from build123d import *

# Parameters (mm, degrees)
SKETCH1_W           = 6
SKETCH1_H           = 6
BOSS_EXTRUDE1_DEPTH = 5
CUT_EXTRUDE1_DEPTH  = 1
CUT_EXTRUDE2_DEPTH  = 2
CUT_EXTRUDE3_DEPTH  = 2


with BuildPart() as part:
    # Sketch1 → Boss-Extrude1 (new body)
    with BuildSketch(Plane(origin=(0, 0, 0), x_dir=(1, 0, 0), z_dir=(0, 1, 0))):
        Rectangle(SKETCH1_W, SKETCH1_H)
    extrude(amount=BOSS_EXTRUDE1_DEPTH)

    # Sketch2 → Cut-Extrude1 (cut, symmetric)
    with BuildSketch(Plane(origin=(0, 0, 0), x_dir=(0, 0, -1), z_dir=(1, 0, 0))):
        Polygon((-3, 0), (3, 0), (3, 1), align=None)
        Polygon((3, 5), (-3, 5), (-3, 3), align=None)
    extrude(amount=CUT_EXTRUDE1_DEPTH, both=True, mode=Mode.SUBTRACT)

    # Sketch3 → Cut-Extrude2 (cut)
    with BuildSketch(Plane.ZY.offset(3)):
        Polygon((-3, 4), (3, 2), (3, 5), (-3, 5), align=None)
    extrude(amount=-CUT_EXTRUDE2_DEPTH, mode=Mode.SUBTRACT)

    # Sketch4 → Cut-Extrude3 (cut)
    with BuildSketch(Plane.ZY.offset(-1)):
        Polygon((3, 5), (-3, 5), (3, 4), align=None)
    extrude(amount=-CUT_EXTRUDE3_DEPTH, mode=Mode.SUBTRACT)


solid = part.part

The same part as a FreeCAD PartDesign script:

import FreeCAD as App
import Part
import Sketcher
from FreeCAD import Vector
Q = App.Units.Quantity

doc = App.newDocument("Part")
body = doc.addObject("PartDesign::Body", "Body")

# Sketch on XZ plane
sketch1 = doc.addObject("Sketcher::SketchObject", "Sketch")
body.addObject(sketch1)
sketch1.AttachmentSupport = (doc.XZ_Plane, [""])
sketch1.MapMode = "FlatFace"
sketch1.addGeometry([
    Part.LineSegment(Vector(-3, -3, 0), Vector(-3, 3, 0)),
    Part.LineSegment(Vector(-3, 3, 0), Vector(3, 3, 0)),
    Part.LineSegment(Vector(3, 3, 0), Vector(3, -3, 0)),
    Part.LineSegment(Vector(3, -3, 0), Vector(-3, -3, 0)),
], False)
sketch1.addConstraint([
    Sketcher.Constraint("Coincident", 0, 2, 1, 1),
    Sketcher.Constraint("Coincident", 1, 2, 2, 1),
    Sketcher.Constraint("Coincident", 2, 2, 3, 1),
    Sketcher.Constraint("Coincident", 3, 2, 0, 1),
    Sketcher.Constraint("Vertical", 0),
    Sketcher.Constraint("Horizontal", 1),
    Sketcher.Constraint("Vertical", 2),
    Sketcher.Constraint("Horizontal", 3),
    Sketcher.Constraint("Symmetric", 0, 2, 2, 2, -1, 1),
    Sketcher.Constraint("Equal", 3, 0),
    Sketcher.Constraint("DistanceX", 1, 1, 1, 2, Q("6 mm")),
])
pad1 = doc.addObject("PartDesign::Pad", "Pad")
body.addObject(pad1)
pad1.Profile = sketch1
pad1.Length = 5
pad1.Reversed = True

# Sketch on YZ plane
sketch2 = doc.addObject("Sketcher::SketchObject", "Sketch001")
body.addObject(sketch2)
sketch2.AttachmentSupport = (doc.YZ_Plane, [""])
sketch2.MapMode = "FlatFace"
sketch2.addGeometry([
    Part.LineSegment(Vector(0, 3, 0), Vector(0, -3, 0)),  # 0
    Part.LineSegment(Vector(0, -3, 0), Vector(1, -3, 0)),  # 1
    Part.LineSegment(Vector(1, -3, 0), Vector(0, 3, 0)),  # 2
    Part.LineSegment(Vector(5, -3, 0), Vector(5, 3, 0)),  # 3
    Part.LineSegment(Vector(5, 3, 0), Vector(3, 3, 0)),  # 4
    Part.LineSegment(Vector(3, 3, 0), Vector(5, -3, 0)),  # 5
], False)
sketch2.addConstraint([
    Sketcher.Constraint("Coincident", 0, 2, 1, 1),
    Sketcher.Constraint("Coincident", 1, 2, 2, 1),
    Sketcher.Constraint("Coincident", 2, 2, 0, 1),
    Sketcher.Constraint("Coincident", 3, 2, 4, 1),
    Sketcher.Constraint("Coincident", 4, 2, 5, 1),
    Sketcher.Constraint("Coincident", 5, 2, 3, 1),
    Sketcher.Constraint("Vertical", 0),
    Sketcher.Constraint("Horizontal", 1),
    Sketcher.Constraint("Vertical", 3),
    Sketcher.Constraint("Horizontal", 4),
    Sketcher.Constraint("Symmetric", 0, 2, 2, 2, -1, 1),
    Sketcher.Constraint("Horizontal", 2, 2, 3, 2),
    Sketcher.Constraint("Horizontal", 1, 2, 5, 2),
    Sketcher.Constraint("DistanceX", 1, 1, 1, 2, Q("1 mm")),
    Sketcher.Constraint("DistanceX", 4, 2, 4, 1, Q("2 mm")),
    Sketcher.Constraint("DistanceY", 0, 2, 0, 1, Q("6 mm")),
    Sketcher.Constraint("DistanceX", -1, 1, 3, 2, Q("5 mm")),
])
pocket1 = doc.addObject("PartDesign::Pocket", "Pocket")
body.addObject(pocket1)
pocket1.Profile = sketch2
pocket1.Length = 2
pocket1.Midplane = True

# Sketch on YZ plane
sketch3 = doc.addObject("Sketcher::SketchObject", "Sketch002")
body.addObject(sketch3)
sketch3.AttachmentSupport = (doc.YZ_Plane, [""])
sketch3.MapMode = "FlatFace"
sketch3.AttachmentOffset = App.Placement(Vector(0, 0, -3), App.Rotation())
sketch3.addGeometry([
    Part.LineSegment(Vector(4, -3, 0), Vector(2, 3, 0)),
    Part.LineSegment(Vector(2, 3, 0), Vector(5, 3, 0)),
    Part.LineSegment(Vector(5, 3, 0), Vector(5, -3, 0)),
    Part.LineSegment(Vector(5, -3, 0), Vector(4, -3, 0)),
], False)
sketch3.addConstraint([
    Sketcher.Constraint("Coincident", 0, 2, 1, 1),
    Sketcher.Constraint("Coincident", 1, 2, 2, 1),
    Sketcher.Constraint("Coincident", 2, 2, 3, 1),
    Sketcher.Constraint("Coincident", 3, 2, 0, 1),
    Sketcher.Constraint("Horizontal", 1),
    Sketcher.Constraint("Vertical", 2),
    Sketcher.Constraint("Horizontal", 3),
    Sketcher.Constraint("DistanceX", 1, 1, 1, 2, Q("3 mm")),
    Sketcher.Constraint("DistanceX", 3, 2, 3, 1, Q("1 mm")),
    Sketcher.Constraint("DistanceY", 2, 2, 2, 1, Q("6 mm")),
    Sketcher.Constraint("DistanceX", -1, 1, 0, 2, Q("2 mm")),
    Sketcher.Constraint("DistanceY", -1, 1, 0, 2, Q("3 mm")),
])
pocket2 = doc.addObject("PartDesign::Pocket", "Pocket001")
body.addObject(pocket2)
pocket2.Profile = sketch3
pocket2.Length = 2
pocket2.Reversed = True

# Sketch on YZ plane
sketch4 = doc.addObject("Sketcher::SketchObject", "Sketch003")
body.addObject(sketch4)
sketch4.AttachmentSupport = (doc.YZ_Plane, [""])
sketch4.MapMode = "FlatFace"
sketch4.AttachmentOffset = App.Placement(Vector(0, 0, 1), App.Rotation())
sketch4.addGeometry([
    Part.LineSegment(Vector(5, 3, 0), Vector(5, -3, 0)),
    Part.LineSegment(Vector(5, -3, 0), Vector(4, 3, 0)),
    Part.LineSegment(Vector(4, 3, 0), Vector(5, 3, 0)),
], False)
sketch4.addConstraint([
    Sketcher.Constraint("Coincident", 0, 2, 1, 1),
    Sketcher.Constraint("Coincident", 1, 2, 2, 1),
    Sketcher.Constraint("Coincident", 2, 2, 0, 1),
    Sketcher.Constraint("Vertical", 0),
    Sketcher.Constraint("Horizontal", 2),
    Sketcher.Constraint("DistanceX", 2, 1, 2, 2, Q("1 mm")),
    Sketcher.Constraint("DistanceY", 0, 2, 0, 1, Q("6 mm")),
    Sketcher.Constraint("DistanceX", -1, 1, 0, 2, Q("5 mm")),
    Sketcher.Constraint("DistanceY", 0, 2, -1, 1, Q("3 mm")),
])
pocket3 = doc.addObject("PartDesign::Pocket", "Pocket002")
body.addObject(pocket3)
pocket3.Profile = sketch4
pocket3.Length = 2
pocket3.Reversed = True

doc.recompute()
